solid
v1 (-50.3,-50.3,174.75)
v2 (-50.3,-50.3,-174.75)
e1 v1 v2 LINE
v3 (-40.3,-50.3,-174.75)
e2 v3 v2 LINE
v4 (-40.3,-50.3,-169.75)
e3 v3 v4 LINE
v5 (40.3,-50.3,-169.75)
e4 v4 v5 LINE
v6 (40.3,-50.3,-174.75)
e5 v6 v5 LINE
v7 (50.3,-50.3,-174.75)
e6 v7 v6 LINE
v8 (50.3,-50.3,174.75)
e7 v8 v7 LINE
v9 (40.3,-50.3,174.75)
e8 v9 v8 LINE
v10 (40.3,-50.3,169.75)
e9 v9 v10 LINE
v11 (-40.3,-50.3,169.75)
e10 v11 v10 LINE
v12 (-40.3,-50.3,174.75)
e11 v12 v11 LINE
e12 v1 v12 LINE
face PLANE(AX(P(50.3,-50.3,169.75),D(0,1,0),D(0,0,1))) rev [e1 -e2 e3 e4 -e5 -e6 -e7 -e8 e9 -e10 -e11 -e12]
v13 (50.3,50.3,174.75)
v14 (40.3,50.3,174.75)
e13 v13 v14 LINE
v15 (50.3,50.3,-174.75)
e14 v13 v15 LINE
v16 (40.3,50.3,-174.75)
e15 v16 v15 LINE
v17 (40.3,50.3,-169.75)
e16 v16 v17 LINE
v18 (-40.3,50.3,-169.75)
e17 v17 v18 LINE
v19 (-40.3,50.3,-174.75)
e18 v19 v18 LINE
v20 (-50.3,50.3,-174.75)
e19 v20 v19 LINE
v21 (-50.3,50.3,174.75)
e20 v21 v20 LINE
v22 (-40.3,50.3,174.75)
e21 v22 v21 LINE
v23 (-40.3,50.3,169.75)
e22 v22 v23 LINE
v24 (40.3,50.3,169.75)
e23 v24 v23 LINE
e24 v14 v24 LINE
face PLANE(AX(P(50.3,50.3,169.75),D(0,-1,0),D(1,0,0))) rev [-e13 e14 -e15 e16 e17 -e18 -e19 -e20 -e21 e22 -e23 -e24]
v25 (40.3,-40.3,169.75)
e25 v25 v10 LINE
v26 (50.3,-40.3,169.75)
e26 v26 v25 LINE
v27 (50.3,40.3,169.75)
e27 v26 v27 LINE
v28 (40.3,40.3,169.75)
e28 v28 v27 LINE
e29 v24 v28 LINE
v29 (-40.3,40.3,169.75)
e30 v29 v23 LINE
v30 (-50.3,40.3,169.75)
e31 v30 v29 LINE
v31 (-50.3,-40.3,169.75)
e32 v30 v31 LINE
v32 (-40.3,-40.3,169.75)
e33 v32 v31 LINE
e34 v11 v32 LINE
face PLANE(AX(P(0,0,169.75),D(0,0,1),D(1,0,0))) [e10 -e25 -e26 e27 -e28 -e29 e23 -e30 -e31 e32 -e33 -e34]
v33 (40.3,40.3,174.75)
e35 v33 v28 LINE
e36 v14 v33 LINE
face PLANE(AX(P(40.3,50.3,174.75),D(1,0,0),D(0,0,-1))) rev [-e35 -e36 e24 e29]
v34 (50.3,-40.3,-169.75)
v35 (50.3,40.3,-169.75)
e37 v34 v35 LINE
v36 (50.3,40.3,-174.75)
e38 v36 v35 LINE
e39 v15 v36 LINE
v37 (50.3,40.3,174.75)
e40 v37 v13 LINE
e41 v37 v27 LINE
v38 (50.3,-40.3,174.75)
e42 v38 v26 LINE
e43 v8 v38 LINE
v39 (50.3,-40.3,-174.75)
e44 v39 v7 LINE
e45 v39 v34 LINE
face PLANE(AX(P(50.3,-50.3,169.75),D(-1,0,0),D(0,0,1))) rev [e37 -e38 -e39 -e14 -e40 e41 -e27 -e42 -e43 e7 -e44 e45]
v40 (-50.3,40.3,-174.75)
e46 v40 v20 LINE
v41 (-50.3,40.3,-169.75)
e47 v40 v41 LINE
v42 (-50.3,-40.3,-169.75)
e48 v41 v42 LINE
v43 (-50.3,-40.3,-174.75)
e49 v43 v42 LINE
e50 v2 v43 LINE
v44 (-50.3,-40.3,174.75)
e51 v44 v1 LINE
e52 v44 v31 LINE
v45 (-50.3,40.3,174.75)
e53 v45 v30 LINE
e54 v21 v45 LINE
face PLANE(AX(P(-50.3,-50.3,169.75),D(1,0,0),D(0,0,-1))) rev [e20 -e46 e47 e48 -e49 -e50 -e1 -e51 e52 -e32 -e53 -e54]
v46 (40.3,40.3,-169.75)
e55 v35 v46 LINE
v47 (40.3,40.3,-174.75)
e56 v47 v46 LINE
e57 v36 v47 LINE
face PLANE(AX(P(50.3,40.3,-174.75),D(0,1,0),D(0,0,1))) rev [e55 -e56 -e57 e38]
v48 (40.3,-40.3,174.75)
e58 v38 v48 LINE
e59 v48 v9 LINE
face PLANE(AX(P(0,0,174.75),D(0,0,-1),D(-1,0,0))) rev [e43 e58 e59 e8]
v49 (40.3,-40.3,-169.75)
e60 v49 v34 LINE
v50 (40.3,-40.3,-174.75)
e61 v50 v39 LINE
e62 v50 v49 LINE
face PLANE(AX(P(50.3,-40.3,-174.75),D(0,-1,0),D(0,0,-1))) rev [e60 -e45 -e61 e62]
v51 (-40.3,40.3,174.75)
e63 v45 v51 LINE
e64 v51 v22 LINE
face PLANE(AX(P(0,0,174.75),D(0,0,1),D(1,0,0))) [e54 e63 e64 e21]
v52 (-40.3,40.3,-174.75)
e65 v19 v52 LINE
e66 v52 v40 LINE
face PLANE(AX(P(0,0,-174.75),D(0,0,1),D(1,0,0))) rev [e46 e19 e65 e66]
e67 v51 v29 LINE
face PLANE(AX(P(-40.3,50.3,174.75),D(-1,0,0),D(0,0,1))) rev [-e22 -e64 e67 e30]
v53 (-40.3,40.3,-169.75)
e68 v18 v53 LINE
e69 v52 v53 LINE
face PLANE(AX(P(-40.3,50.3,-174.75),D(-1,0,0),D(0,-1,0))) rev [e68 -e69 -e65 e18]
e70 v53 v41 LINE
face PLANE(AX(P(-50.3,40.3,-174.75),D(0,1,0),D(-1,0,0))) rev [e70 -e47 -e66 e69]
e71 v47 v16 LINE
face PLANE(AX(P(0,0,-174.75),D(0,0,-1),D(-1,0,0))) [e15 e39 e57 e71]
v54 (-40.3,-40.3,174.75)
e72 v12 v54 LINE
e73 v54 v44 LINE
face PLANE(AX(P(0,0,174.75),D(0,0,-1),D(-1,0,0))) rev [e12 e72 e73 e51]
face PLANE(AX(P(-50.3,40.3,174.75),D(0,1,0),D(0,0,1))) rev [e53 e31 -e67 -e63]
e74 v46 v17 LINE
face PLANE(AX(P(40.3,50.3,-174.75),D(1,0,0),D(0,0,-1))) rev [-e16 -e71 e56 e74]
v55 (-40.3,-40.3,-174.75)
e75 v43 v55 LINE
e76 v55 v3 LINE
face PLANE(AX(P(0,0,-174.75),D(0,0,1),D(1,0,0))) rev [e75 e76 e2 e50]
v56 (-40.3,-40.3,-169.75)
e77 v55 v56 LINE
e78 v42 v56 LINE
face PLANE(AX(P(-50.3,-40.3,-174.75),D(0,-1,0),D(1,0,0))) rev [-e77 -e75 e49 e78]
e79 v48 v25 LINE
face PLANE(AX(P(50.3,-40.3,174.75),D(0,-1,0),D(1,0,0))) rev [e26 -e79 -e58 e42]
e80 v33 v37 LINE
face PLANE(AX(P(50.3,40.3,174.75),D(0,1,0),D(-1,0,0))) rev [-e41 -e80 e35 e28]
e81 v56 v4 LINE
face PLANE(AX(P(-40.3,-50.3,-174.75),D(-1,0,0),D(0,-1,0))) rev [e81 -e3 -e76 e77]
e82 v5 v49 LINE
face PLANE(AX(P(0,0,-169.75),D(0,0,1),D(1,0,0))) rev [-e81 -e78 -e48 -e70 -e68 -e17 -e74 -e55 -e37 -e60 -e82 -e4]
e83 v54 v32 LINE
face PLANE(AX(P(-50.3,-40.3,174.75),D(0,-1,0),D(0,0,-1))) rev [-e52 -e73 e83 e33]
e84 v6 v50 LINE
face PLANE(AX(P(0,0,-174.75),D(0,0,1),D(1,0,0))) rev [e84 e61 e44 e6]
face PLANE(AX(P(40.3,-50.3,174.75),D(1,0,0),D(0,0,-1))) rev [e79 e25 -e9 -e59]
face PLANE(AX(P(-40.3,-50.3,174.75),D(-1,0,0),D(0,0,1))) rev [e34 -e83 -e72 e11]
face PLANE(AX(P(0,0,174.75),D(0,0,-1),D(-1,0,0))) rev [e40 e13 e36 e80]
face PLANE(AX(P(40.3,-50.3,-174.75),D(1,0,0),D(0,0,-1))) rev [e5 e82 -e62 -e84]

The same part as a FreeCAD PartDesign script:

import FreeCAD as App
import Part
import Sketcher

V = App.Vector
Q = App.Units.Quantity

doc = App.newDocument("Part")
body = doc.addObject("PartDesign::Body", "Body")

sketch1 = doc.addObject("Sketcher::SketchObject", "Sketch")
body.addObject(sketch1)
sketch1.AttachmentSupport = (doc.XY_Plane, [""])
sketch1.MapMode = "FlatFace"
sketch1.addGeometry([
    Part.LineSegment(V(-50, 50, 0), V(-50, -50, 0)),
    Part.LineSegment(V(-50, -50, 0), V(50, -50, 0)),
    Part.LineSegment(V(50, -50, 0), V(50, 50, 0)),
    Part.LineSegment(V(50, 50, 0), V(-50, 50, 0)),
], False)
sketch1.addConstraint([
    Sketcher.Constraint("Coincident", 0, 2, 1, 1),
    Sketcher.Constraint("Coincident", 1, 2, 2, 1),
    Sketcher.Constraint("Coincident", 2, 2, 3, 1),
    Sketcher.Constraint("Coincident", 3, 2, 0, 1),
    Sketcher.Constraint("Vertical", 0),
    Sketcher.Constraint("Horizontal", 1),
    Sketcher.Constraint("Vertical", 2),
    Sketcher.Constraint("Horizontal", 3),
    Sketcher.Constraint("Symmetric", 0, 2, 2, 2, -1, 1),
    Sketcher.Constraint("Equal", 3, 0),
    Sketcher.Constraint("DistanceX", 1, 1, 1, 2, Q("100.6 mm")),
])
pad1 = doc.addObject("PartDesign::Pad", "Pad")
body.addObject(pad1)
pad1.Profile = sketch1
pad1.Length = 339.5
pad1.Midplane = True

sketch2 = doc.addObject("Sketcher::SketchObject", "Sketch001")
body.addObject(sketch2)
sketch2.AttachmentSupport = (doc.XY_Plane, [""])
sketch2.MapMode = "FlatFace"
sketch2.AttachmentOffset = App.Placement(V(0, 0, 169.75), App.Rotation())
sketch2.addGeometry([
    Part.LineSegment(V(-50, 50, 0), V(-50, 40, 0)),
    Part.LineSegment(V(-50, 40, 0), V(-40, 40, 0)),
    Part.LineSegment(V(-40, 40, 0), V(-40, 50, 0)),
    Part.LineSegment(V(-40, 50, 0), V(-50, 50, 0)),
    Part.LineSegment(V(40, 50, 0), V(40, 40, 0)),
    Part.LineSegment(V(40, 40, 0), V(50, 40, 0)),
    Part.LineSegment(V(50, 40, 0), V(50, 50, 0)),
    Part.LineSegment(V(50, 50, 0), V(40, 50, 0)),
    Part.LineSegment(V(40, -40, 0), V(40, -50, 0)),
    Part.LineSegment(V(40, -50, 0), V(50, -50, 0)),
    Part.LineSegment(V(50, -50, 0), V(50, -40, 0)),
    Part.LineSegment(V(50, -40, 0), V(40, -40, 0)),
    Part.LineSegment(V(-50, -40, 0), V(-50, -50, 0)),
    Part.LineSegment(V(-50, -50, 0), V(-40, -50, 0)),
    Part.LineSegment(V(-40, -50, 0), V(-40, -40, 0)),
    Part.LineSegment(V(-40, -40, 0), V(-50, -40, 0)),
], False)
sketch2.addConstraint([
    Sketcher.Constraint("Coincident", 0, 2, 1, 1),
    Sketcher.Constraint("Coincident", 1, 2, 2, 1),
    Sketcher.Constraint("Coincident", 2, 2, 3, 1),
    Sketcher.Constraint("Coincident", 3, 2, 0, 1),
    Sketcher.Constraint("Coincident", 4, 2, 5, 1),
    Sketcher.Constraint("Coincident", 5, 2, 6, 1),
    Sketcher.Constraint("Coincident", 6, 2, 7, 1),
    Sketcher.Constraint("Coincident", 7, 2, 4, 1),
    Sketcher.Constraint("Coincident", 8, 2, 9, 1),
    Sketcher.Constraint("Coincident", 9, 2, 10, 1),
    Sketcher.Constraint("Coincident", 10, 2, 11, 1),
    Sketcher.Constraint("Coincident", 11, 2, 8, 1),
    Sketcher.Constraint("Coincident", 12, 2, 13, 1),
    Sketcher.Constraint("Coincident", 13, 2, 14, 1),
    Sketcher.Constraint("Coincident", 14, 2, 15, 1),
    Sketcher.Constraint("Coincident", 15, 2, 12, 1),
    Sketcher.Constraint("Vertical", 0),
    Sketcher.Constraint("Horizontal", 1),
    Sketcher.Constraint("Vertical", 2),
    Sketcher.Constraint("Horizontal", 3),
    Sketcher.Constraint("Vertical", 4),
    Sketcher.Constraint("Horizontal", 5),
    Sketcher.Constraint("Vertical", 6),
    Sketcher.Constraint("Horizontal", 7),
    Sketcher.Constraint("Vertical", 8),
    Sketcher.Constraint("Horizontal", 9),
    Sketcher.Constraint("Vertical", 10),
    Sketcher.Constraint("Horizontal", 11),
    Sketcher.Constraint("Vertical", 12),
    Sketcher.Constraint("Horizontal", 13),
    Sketcher.Constraint("Vertical", 14),
    Sketcher.Constraint("Horizontal", 15),
    Sketcher.Constraint("Symmetric", 2, 2, 8, 2, -1, 1),
    Sketcher.Constraint("Symmetric", 0, 2, 10, 2, -1, 1),
    Sketcher.Constraint("Symmetric", 6, 2, 12, 2, -1, 1),
    Sketcher.Constraint("Symmetric", 4, 2, 14, 2, -1, 1),
    Sketcher.Constraint("Symmetric", 1, 2, 4, 2, -2),
    Sketcher.Constraint("Symmetric", 3, 2, 6, 2, -2),
    Sketcher.Constraint("Equal", 15, 0),
    Sketcher.Constraint("DistanceX", 1, 1, 1, 2, Q("10 mm")),
    Sketcher.Constraint("DistanceX", 0, 2, -1, 1, Q("50.3 mm")),
    Sketcher.Constraint("DistanceY", -1, 1, 0, 2, Q("40.3 mm")),
])
pad2 = doc.addObject("PartDesign::Pad", "Pad001")
body.addObject(pad2)
pad2.Profile = sketch2
pad2.Length = 5

sketch3 = doc.addObject("Sketcher::SketchObject", "Sketch002")
body.addObject(sketch3)
sketch3.AttachmentSupport = (doc.XY_Plane, [""])
sketch3.MapMode = "FlatFace"
sketch3.AttachmentOffset = App.Placement(V(0, 0, -169.75), App.Rotation())
sketch3.addGeometry([
    Part.LineSegment(V(50, 50, 0), V(50, 40, 0)),
    Part.LineSegment(V(50, 40, 0), V(40, 40, 0)),
    Part.LineSegment(V(40, 40, 0), V(40, 50, 0)),
    Part.LineSegment(V(40, 50, 0), V(50, 50, 0)),
    Part.LineSegment(V(-40, 50, 0), V(-40, 40, 0)),
    Part.LineSegment(V(-40, 40, 0), V(-50, 40, 0)),
    Part.LineSegment(V(-50, 40, 0), V(-50, 50, 0)),
    Part.LineSegment(V(-50, 50, 0), V(-40, 50, 0)),
    Part.LineSegment(V(-40, -40, 0), V(-40, -50, 0)),
    Part.LineSegment(V(-40, -50, 0), V(-50, -50, 0)),
    Part.LineSegment(V(-50, -50, 0), V(-50, -40, 0)),
    Part.LineSegment(V(-50, -40, 0), V(-40, -40, 0)),
    Part.LineSegment(V(50, -40, 0), V(50, -50, 0)),
    Part.LineSegment(V(50, -50, 0), V(40, -50, 0)),
    Part.LineSegment(V(40, -50, 0), V(40, -40, 0)),
    Part.LineSegment(V(40, -40, 0), V(50, -40, 0)),
], False)
sketch3.addConstraint([
    Sketcher.Constraint("Coincident", 0, 2, 1, 1),
    Sketcher.Constraint("Coincident", 1, 2, 2, 1),
    Sketcher.Constraint("Coincident", 2, 2, 3, 1),
    Sketcher.Constraint("Coincident", 3, 2, 0, 1),
    Sketcher.Constraint("Coincident", 4, 2, 5, 1),
    Sketcher.Constraint("Coincident", 5, 2, 6, 1),
    Sketcher.Constraint("Coincident", 6, 2, 7, 1),
    Sketcher.Constraint("Coincident", 7, 2, 4, 1),
    Sketcher.Constraint("Coincident", 8, 2, 9, 1),
    Sketcher.Constraint("Coincident", 9, 2, 10, 1),
    Sketcher.Constraint("Coincident", 10, 2, 11, 1),
    Sketcher.Constraint("Coincident", 11, 2, 8, 1),
    Sketcher.Constraint("Coincident", 12, 2, 13, 1),
    Sketcher.Constraint("Coincident", 13, 2, 14, 1),
    Sketcher.Constraint("Coincident", 14, 2, 15, 1),
    Sketcher.Constraint("Coincident", 15, 2, 12, 1),
    Sketcher.Constraint("Vertical", 0),
    Sketcher.Constraint("Horizontal", 1),
    Sketcher.Constraint("Vertical", 2),
    Sketcher.Constraint("Horizontal", 3),
    Sketcher.Constraint("Vertical", 4),
    Sketcher.Constraint("Horizontal", 5),
    Sketcher.Constraint("Vertical", 6),
    Sketcher.Constraint("Horizontal", 7),
    Sketcher.Constraint("Vertical", 8),
    Sketcher.Constraint("Horizontal", 9),
    Sketcher.Constraint("Vertical", 10),
    Sketcher.Constraint("Horizontal", 11),
    Sketcher.Constraint("Vertical", 12),
    Sketcher.Constraint("Horizontal", 13),
    Sketcher.Constraint("Vertical", 14),
    Sketcher.Constraint("Horizontal", 15),
    Sketcher.Constraint("Symmetric", 2, 2, 8, 2, -1, 1),
    Sketcher.Constraint("Symmetric", 0, 2, 10, 2, -1, 1),
    Sketcher.Constraint("Symmetric", 6, 2, 12, 2, -1, 1),
    Sketcher.Constraint("Symmetric", 4, 2, 14, 2, -1, 1),
    Sketcher.Constraint("Symmetric", 1, 2, 4, 2, -2),
    Sketcher.Constraint("Symmetric", 3, 2, 6, 2, -2),
    Sketcher.Constraint("Equal", 15, 0),
    Sketcher.Constraint("DistanceX", 1, 2, 1, 1, Q("10 mm")),
    Sketcher.Constraint("DistanceX", -1, 1, 0, 2, Q("50.3 mm")),
    Sketcher.Constraint("DistanceY", -1, 1, 0, 2, Q("40.3 mm")),
])
pad3 = doc.addObject("PartDesign::Pad", "Pad002")
body.addObject(pad3)
pad3.Profile = sketch3
pad3.Length = 5
pad3.Reversed = True

doc.recompute()
